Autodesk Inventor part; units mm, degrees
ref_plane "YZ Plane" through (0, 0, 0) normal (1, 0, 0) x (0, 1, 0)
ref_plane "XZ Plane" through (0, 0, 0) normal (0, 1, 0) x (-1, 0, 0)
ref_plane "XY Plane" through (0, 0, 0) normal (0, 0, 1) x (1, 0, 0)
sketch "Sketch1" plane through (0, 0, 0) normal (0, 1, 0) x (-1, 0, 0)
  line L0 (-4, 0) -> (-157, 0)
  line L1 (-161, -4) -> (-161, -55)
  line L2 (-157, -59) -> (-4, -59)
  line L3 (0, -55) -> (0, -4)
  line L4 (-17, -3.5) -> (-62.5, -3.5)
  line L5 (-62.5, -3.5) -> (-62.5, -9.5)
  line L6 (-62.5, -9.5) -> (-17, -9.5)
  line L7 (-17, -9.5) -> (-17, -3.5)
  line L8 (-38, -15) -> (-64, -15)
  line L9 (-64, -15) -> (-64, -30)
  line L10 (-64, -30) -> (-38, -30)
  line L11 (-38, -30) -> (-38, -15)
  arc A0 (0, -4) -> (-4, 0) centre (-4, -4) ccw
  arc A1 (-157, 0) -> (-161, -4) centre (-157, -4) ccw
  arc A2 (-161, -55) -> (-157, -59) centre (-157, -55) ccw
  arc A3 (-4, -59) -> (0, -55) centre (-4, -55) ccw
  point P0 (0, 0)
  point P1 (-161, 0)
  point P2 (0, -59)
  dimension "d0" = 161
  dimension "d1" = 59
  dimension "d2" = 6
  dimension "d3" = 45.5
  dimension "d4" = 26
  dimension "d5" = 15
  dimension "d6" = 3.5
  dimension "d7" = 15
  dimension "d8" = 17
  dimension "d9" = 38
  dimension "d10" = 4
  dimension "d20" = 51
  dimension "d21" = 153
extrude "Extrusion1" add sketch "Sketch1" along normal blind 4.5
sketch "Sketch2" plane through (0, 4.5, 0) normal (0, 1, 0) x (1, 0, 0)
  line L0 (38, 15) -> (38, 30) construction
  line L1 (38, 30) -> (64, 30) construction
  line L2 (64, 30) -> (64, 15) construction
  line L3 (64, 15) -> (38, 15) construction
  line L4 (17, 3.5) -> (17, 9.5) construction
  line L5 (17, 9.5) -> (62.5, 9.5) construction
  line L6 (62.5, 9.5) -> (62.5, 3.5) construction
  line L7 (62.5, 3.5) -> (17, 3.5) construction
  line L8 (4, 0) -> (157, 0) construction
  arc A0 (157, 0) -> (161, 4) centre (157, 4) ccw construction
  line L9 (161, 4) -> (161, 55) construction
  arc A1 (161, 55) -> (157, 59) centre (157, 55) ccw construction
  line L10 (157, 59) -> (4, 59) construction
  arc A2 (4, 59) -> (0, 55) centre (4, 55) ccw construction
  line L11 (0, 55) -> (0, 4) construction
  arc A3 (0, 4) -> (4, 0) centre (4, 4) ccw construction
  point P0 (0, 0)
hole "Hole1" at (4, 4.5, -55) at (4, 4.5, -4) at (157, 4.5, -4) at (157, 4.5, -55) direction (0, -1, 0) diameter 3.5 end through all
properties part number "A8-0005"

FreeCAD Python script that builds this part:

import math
import FreeCAD as App
import Part
import Sketcher
from FreeCAD import Vector


def add_polygon(sketch, points):
    """Adds a closed chain of lines whose ends are joined by coincident constraints."""
    first, n = sketch.GeometryCount, len(points)
    for a, b in zip(points, points[1:] + points[:1]):
        sketch.addGeometry(Part.LineSegment(App.Vector(*a, 0), App.Vector(*b, 0)), False)
    for i in range(n):
        sketch.addConstraint(Sketcher.Constraint("Coincident", first + i, 2, first + (i + 1) % n, 1))

doc = App.newDocument("Part")
body = doc.addObject("PartDesign::Body", "Body")

# Sketch on XZ plane
sketch1 = body.newObject("Sketcher::SketchObject", "Sketch")
sketch1.AttachmentSupport = (doc.getObject("XZ_Plane"), [""])
sketch1.MapMode = "FlatFace"
sketch1.addGeometry(Part.ArcOfCircle(Part.Circle(Vector(4, -4, 0), Vector(0, 0, 1), 4), math.radians(90), math.radians(180)), False)  # 0
sketch1.addGeometry(Part.LineSegment(Vector(4, 0, 0), Vector(157, 0, 0)), False)  # 1
sketch1.addGeometry(Part.ArcOfCircle(Part.Circle(Vector(157, -4, 0), Vector(0, 0, 1), 4), math.radians(0), math.radians(90)), False)  # 2
sketch1.addGeometry(Part.LineSegment(Vector(161, -4, 0), Vector(161, -55, 0)), False)  # 3
sketch1.addGeometry(Part.ArcOfCircle(Part.Circle(Vector(157, -55, 0), Vector(0, 0, 1), 4), math.radians(-90), math.radians(0)), False)  # 4
sketch1.addGeometry(Part.LineSegment(Vector(157, -59, 0), Vector(4, -59, 0)), False)  # 5
sketch1.addGeometry(Part.ArcOfCircle(Part.Circle(Vector(4, -55, 0), Vector(0, 0, 1), 4), math.radians(180), math.radians(270)), False)  # 6
sketch1.addGeometry(Part.LineSegment(Vector(0, -55, 0), Vector(0, -4, 0)), False)  # 7
add_polygon(sketch1, [(64, -15), (38, -15), (38, -30), (64, -30)])  # lines 8-11
add_polygon(sketch1, [(62.5, -3.5), (17, -3.5), (17, -9.5), (62.5, -9.5)])  # lines 12-15
sketch1.addConstraint([
    Sketcher.Constraint("Tangent", 0, 1, 1, 1),
    Sketcher.Constraint("Tangent", 1, 2, 2, 2),
    Sketcher.Constraint("Tangent", 2, 1, 3, 1),
    Sketcher.Constraint("Tangent", 3, 2, 4, 2),
    Sketcher.Constraint("Tangent", 4, 1, 5, 1),
    Sketcher.Constraint("Tangent", 5, 2, 6, 2),
    Sketcher.Constraint("Tangent", 6, 1, 7, 1),
    Sketcher.Constraint("Tangent", 7, 2, 0, 2),
    Sketcher.Constraint("Horizontal", 1),
    Sketcher.Constraint("Vertical", 3),
    Sketcher.Constraint("Horizontal", 5),
    Sketcher.Constraint("Vertical", 7),
    Sketcher.Constraint("Horizontal", 8),
    Sketcher.Constraint("Vertical", 9),
    Sketcher.Constraint("Horizontal", 10),
    Sketcher.Constraint("Vertical", 11),
    Sketcher.Constraint("Horizontal", 12),
    Sketcher.Constraint("Vertical", 13),
    Sketcher.Constraint("Horizontal", 14),
    Sketcher.Constraint("Vertical", 15),
    Sketcher.Constraint("Equal", 0, 2),
    Sketcher.Constraint("Equal", 2, 4),
    Sketcher.Constraint("Equal", 4, 6),
    Sketcher.Constraint("PointOnObject", 0, 1, -1),
    Sketcher.Constraint("PointOnObject", 6, 1, -2),
    Sketcher.Constraint("Radius", 0, 4.0),
    Sketcher.Constraint("DistanceX", 1, 1, 1, 2, 153.0),
    Sketcher.Constraint("DistanceX", 8, 2, 8, 1, 26.0),
    Sketcher.Constraint("DistanceY", 3, 2, 3, 1, 51.0),
    Sketcher.Constraint("DistanceY", 9, 2, 9, 1, 15.0),
    Sketcher.Constraint("DistanceY", 13, 2, 13, 1, 6.0),
    Sketcher.Constraint("DistanceX", 12, 2, 12, 1, 45.5),
    Sketcher.Constraint("DistanceX", -1, 1, 8, 2, 38.0),
    Sketcher.Constraint("DistanceY", 8, 2, -1, 1, 15.0),
    Sketcher.Constraint("DistanceX", -1, 1, 12, 2, 17.0),
    Sketcher.Constraint("DistanceY", 12, 2, -1, 1, 3.5),
])
pad1 = body.newObject("PartDesign::Pad", "Pad")
pad1.Profile = sketch1
pad1.Length = 4.5
pad1.Reversed = True

# Sketch on XZ plane
sketch2 = body.newObject("Sketcher::SketchObject", "Sketch001")
sketch2.AttachmentSupport = (doc.getObject("XZ_Plane"), [""])
sketch2.MapMode = "FlatFace"
sketch2.AttachmentOffset = App.Placement(Vector(0, 0, -4.5), App.Rotation())
sketch2.addGeometry([
    Part.Circle(Vector(4, -55, 0), Vector(0, 0, 1), 1.8),
    Part.Circle(Vector(4, -4, 0), Vector(0, 0, 1), 1.8),
    Part.Circle(Vector(157, -4, 0), Vector(0, 0, 1), 1.8),
    Part.Circle(Vector(157, -55, 0), Vector(0, 0, 1), 1.8),
], False)
sketch2.addConstraint([
    Sketcher.Constraint("Equal", 0, 1),
    Sketcher.Constraint("Equal", 1, 2),
    Sketcher.Constraint("Equal", 2, 3),
    Sketcher.Constraint("Horizontal", 1, 3, 2, 3),
    Sketcher.Constraint("Horizontal", 0, 3, 3, 3),
    Sketcher.Constraint("Vertical", 0, 3, 1, 3),
    Sketcher.Constraint("Vertical", 2, 3, 3, 3),
    Sketcher.Constraint("Diameter", 0, 3.5),
    Sketcher.Constraint("DistanceX", -1, 1, 0, 3, 4.0),
    Sketcher.Constraint("DistanceY", 0, 3, -1, 1, 55.0),
    Sketcher.Constraint("DistanceY", 1, 3, -1, 1, 4.0),
    Sketcher.Constraint("DistanceX", -1, 1, 2, 3, 157.0),
])
doc.recompute()
hole = body.newObject("PartDesign::Hole", "Hole")
hole.Profile = sketch2
hole.ThreadType = "None"
hole.Diameter = 3.5
hole.DepthType = "ThroughAll"
hole.Reversed = True

doc.recompute()
